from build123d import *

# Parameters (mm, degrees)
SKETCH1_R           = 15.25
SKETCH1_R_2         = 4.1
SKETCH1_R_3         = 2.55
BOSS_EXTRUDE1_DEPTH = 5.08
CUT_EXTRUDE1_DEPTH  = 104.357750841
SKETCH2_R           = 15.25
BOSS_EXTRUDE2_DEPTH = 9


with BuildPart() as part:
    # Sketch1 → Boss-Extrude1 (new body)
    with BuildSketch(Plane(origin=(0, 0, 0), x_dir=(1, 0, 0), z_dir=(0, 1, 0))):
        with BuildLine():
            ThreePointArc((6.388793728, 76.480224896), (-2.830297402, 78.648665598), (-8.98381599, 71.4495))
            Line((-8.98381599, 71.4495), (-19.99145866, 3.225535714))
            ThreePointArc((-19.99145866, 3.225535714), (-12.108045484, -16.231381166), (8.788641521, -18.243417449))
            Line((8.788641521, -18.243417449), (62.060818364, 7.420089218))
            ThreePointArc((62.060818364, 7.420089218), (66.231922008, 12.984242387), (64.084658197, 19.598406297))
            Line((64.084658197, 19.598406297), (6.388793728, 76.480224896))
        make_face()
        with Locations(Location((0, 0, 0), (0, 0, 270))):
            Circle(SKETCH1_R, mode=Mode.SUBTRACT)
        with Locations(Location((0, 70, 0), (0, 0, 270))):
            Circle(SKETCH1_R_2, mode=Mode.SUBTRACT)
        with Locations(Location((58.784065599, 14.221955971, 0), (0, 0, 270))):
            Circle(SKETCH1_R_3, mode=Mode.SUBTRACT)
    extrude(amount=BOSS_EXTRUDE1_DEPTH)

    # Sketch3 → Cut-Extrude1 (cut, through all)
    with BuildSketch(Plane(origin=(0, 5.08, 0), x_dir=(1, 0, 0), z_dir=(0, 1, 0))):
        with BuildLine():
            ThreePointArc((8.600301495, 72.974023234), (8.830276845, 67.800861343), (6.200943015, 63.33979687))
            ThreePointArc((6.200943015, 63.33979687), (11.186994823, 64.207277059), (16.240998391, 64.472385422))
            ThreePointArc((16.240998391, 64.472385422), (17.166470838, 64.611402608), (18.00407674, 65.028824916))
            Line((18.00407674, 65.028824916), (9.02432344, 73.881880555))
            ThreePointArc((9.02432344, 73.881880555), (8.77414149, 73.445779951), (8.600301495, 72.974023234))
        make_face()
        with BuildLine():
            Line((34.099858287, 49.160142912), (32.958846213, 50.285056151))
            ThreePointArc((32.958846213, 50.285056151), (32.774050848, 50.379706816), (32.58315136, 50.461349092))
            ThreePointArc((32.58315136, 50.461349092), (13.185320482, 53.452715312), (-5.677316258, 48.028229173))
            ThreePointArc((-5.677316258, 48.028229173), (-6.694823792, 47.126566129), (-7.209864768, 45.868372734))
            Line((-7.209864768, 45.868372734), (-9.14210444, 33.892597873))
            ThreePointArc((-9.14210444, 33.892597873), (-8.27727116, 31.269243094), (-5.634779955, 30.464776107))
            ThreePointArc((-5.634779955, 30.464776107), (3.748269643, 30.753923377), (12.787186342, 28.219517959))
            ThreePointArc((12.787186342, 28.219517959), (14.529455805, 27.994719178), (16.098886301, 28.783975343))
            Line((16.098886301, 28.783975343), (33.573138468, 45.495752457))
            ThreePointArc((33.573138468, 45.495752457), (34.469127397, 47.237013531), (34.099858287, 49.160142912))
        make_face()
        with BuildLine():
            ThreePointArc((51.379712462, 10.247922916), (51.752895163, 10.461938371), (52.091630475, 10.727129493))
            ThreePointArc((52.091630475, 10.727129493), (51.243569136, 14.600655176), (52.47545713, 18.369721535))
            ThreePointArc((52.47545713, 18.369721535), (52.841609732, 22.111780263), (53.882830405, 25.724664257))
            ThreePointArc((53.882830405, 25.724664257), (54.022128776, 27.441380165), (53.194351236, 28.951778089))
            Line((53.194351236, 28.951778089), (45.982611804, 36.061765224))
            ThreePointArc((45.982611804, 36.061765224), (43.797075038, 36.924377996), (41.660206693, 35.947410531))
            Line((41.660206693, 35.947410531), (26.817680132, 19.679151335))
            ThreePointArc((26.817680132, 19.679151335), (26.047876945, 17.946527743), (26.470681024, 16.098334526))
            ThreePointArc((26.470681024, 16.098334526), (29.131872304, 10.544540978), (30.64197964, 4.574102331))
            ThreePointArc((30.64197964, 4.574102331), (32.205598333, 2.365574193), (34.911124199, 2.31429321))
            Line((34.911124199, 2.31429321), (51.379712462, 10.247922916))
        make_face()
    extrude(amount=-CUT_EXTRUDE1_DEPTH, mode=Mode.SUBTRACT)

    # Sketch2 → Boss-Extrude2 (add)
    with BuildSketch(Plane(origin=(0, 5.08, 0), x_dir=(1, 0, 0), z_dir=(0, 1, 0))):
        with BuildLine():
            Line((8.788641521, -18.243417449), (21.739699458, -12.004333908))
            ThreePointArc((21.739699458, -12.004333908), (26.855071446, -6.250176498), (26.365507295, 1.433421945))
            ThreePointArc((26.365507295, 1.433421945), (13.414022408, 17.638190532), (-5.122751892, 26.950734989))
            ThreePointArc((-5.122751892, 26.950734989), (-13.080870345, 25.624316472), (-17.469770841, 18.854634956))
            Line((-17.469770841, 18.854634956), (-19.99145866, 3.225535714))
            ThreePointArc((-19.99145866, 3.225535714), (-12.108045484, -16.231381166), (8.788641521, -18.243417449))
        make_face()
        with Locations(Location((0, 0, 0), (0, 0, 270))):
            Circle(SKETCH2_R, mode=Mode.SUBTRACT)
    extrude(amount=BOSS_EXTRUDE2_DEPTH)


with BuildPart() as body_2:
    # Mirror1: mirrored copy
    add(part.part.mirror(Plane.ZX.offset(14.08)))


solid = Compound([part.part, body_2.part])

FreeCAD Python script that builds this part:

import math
import FreeCAD as App
import Part
import Sketcher
from FreeCAD import Vector
Q = App.Units.Quantity

doc = App.newDocument("Part")
body = doc.addObject("PartDesign::Body", "Body")

sketch1 = body.newObject("Sketcher::SketchObject", "Sketch")
sketch1.AttachmentSupport = (doc.getObject("XZ_Plane"), [""])
sketch1.MapMode = "FlatFace"
sketch1.addGeometry(Part.ArcOfCircle(Part.Circle(Vector(0, -70, 0), Vector(0, 0, 1), 9.1), math.radians(-170.834561), math.radians(-45.407065)), False)
sketch1.addGeometry(Part.LineSegment(Vector(-8.983816, -71.4495, 0), Vector(-19.991459, -3.225536, 0)), False)
sketch1.addGeometry(Part.ArcOfCircle(Part.Circle(Vector(0, 0, 0), Vector(0, 0, 1), 20.25), math.radians(64.277876), math.radians(189.165439)), False)
sketch1.addGeometry(Part.LineSegment(Vector(8.788642, 18.243417, 0), Vector(62.060818, -7.420089, 0)), False)
sketch1.addGeometry(Part.ArcOfCircle(Part.Circle(Vector(58.784066, -14.221956, 0), Vector(0, 0, 1), 7.55), math.radians(-45.407065), math.radians(64.277876)), False)
sketch1.addGeometry(Part.LineSegment(Vector(64.084658, -19.598406, 0), Vector(6.388794, -76.480225, 0)), False)
sketch1.addGeometry(Part.Circle(Vector(0, 0, 0), Vector(0, 0, 1), 15.25), False)
sketch1.addGeometry(Part.Circle(Vector(58.784066, -14.221956, 0), Vector(0, 0, 1), 2.55), False)
sketch1.addGeometry(Part.Circle(Vector(0, -70, 0), Vector(0, 0, 1), 4.1), False)
sketch1.addConstraint(Sketcher.Constraint("Tangent", 0, 1, 1, 1))
sketch1.addConstraint(Sketcher.Constraint("Tangent", 1, 2, 2, 2))
sketch1.addConstraint(Sketcher.Constraint("Tangent", 2, 1, 3, 1))
sketch1.addConstraint(Sketcher.Constraint("Tangent", 3, 2, 4, 2))
sketch1.addConstraint(Sketcher.Constraint("Tangent", 4, 1, 5, 1))
sketch1.addConstraint(Sketcher.Constraint("Tangent", 5, 2, 0, 2))
sketch1.addConstraint(Sketcher.Constraint("Coincident", 2, 3, -1, 1))
sketch1.addConstraint(Sketcher.Constraint("Coincident", 6, 3, -1, 1))
sketch1.addConstraint(Sketcher.Constraint("Coincident", 7, 3, 4, 3))
sketch1.addConstraint(Sketcher.Constraint("Coincident", 8, 3, 0, 3))
sketch1.addConstraint(Sketcher.Constraint("PointOnObject", 0, 3, -2))
sketch1.addConstraint(Sketcher.Constraint("Diameter", 6, Q("30.5 mm")))
sketch1.addConstraint(Sketcher.Constraint("Diameter", 7, Q("5.1 mm")))
sketch1.addConstraint(Sketcher.Constraint("Diameter", 8, Q("8.2 mm")))
sketch1.addConstraint(Sketcher.Constraint("Radius", 0, Q("9.1 mm")))
sketch1.addConstraint(Sketcher.Constraint("Radius", 2, Q("20.25 mm")))
sketch1.addConstraint(Sketcher.Constraint("Radius", 4, Q("7.55 mm")))
sketch1.addConstraint(Sketcher.Constraint("DistanceY", 0, 3, -1, 1, Q("70 mm")))
sketch1.addConstraint(Sketcher.Constraint("Distance", 5, Q("81.020701 mm")))
sketch1.addConstraint(Sketcher.Constraint("DistanceX", 1, 2, 2, 1, Q("28.7801 mm")))
pad1 = body.newObject("PartDesign::Pad", "Pad")
pad1.Profile = sketch1
pad1.Length = 5.08
pad1.Reversed = True

sketch2 = body.newObject("Sketcher::SketchObject", "Sketch001")
sketch2.AttachmentSupport = (doc.getObject("XZ_Plane"), [""])
sketch2.MapMode = "FlatFace"
sketch2.AttachmentOffset = App.Placement(Vector(0, 0, -5.08), App.Rotation())
sketch2.addGeometry(Part.ArcOfCircle(Part.Circle(Vector(0, -70, 0), Vector(0, 0, 1), 9.1), math.radians(-19.075617), math.radians(47.045112)), False)
sketch2.addGeometry(Part.ArcOfCircle(Part.Circle(Vector(15.923348, -22.220933, 0), Vector(0, 0, 1), 42.252647), math.radians(-103.303059), math.radians(-89.569254)), False)
sketch2.addGeometry(Part.ArcOfCircle(Part.Circle(Vector(16.263552, -67.472301, 0), Vector(0, 0, 1), 3), math.radians(54.537154), math.radians(90.430746)), False)
sketch2.addGeometry(Part.LineSegment(Vector(18.004077, -65.028825, 0), Vector(9.024323, -73.881881, 0)), False)
sketch2.addGeometry(Part.ArcOfCircle(Part.Circle(Vector(11.492283, -72.17625, 0), Vector(0, 0, 1), 3), math.radians(-164.578118), math.radians(-145.351285)), False)
sketch2.addGeometry(Part.LineSegment(Vector(34.099858, -49.160143, 0), Vector(32.958846, -50.285056, 0)), False)
sketch2.addGeometry(Part.ArcOfCircle(Part.Circle(Vector(31.499647, -47.663847, 0), Vector(0, 0, 1), 3), math.radians(-68.828051), math.radians(-60.895781)), False)
sketch2.addGeometry(Part.ArcOfCircle(Part.Circle(Vector(16.084505, -7.863454, 0), Vector(0, 0, 1), 45.681353), math.radians(-118.449437), math.radians(-68.82805)), False)
sketch2.addGeometry(Part.ArcOfCircle(Part.Circle(Vector(-4.248167, -45.390516, 0), Vector(0, 0, 1), 3), math.radians(-170.834561), math.radians(-118.449437)), False)
sketch2.addGeometry(Part.LineSegment(Vector(-7.209865, -45.868373, 0), Vector(-9.142104, -33.892598, 0)), False)
sketch2.addGeometry(Part.ArcOfCircle(Part.Circle(Vector(-6.180407, -33.414741, 0), Vector(0, 0, 1), 3), math.radians(79.520971), math.radians(189.165439)), False)
sketch2.addGeometry(Part.ArcOfCircle(Part.Circle(Vector(0, 0, 0), Vector(0, 0, 1), 30.9815), math.radians(-100.479029), math.radians(-65.623165)), False)
sketch2.addGeometry(Part.ArcOfCircle(Part.Circle(Vector(14.025395, -30.95207, 0), Vector(0, 0, 1), 3), math.radians(46.277696), math.radians(114.376835)), False)
sketch2.addGeometry(Part.LineSegment(Vector(16.098886, -28.783975, 0), Vector(33.573138, -45.495752, 0)), False)
sketch2.addGeometry(Part.ArcOfCircle(Part.Circle(Vector(31.499647, -47.663847, 0), Vector(0, 0, 1), 3), math.radians(-29.918349), math.radians(46.277696)), False)
sketch2.addGeometry(Part.ArcOfCircle(Part.Circle(Vector(50.077691, -12.950651, 0), Vector(0, 0, 1), 3), math.radians(47.831517), math.radians(64.277876)), False)
sketch2.addGeometry(Part.ArcOfCircle(Part.Circle(Vector(58.784066, -14.221956, 0), Vector(0, 0, 1), 7.55), math.radians(152.426189), math.radians(213.324003)), False)
sketch2.addGeometry(Part.ArcOfCircle(Part.Circle(Vector(73.043609, -18.246114, 0), Vector(0, 0, 1), 20.568524), math.radians(-179.655676), math.radians(-158.679043)), False)
sketch2.addGeometry(Part.ArcOfCircle(Part.Circle(Vector(51.088156, -26.81544, 0), Vector(0, 0, 1), 3), math.radians(-45.407065), math.radians(21.320957)), False)
sketch2.addGeometry(Part.LineSegment(Vector(53.194351, -28.951778, 0), Vector(45.982612, -36.061765, 0)), False)
sketch2.addGeometry(Part.ArcOfCircle(Part.Circle(Vector(43.876416, -33.925427, 0), Vector(0, 0, 1), 3), math.radians(-137.623892), math.radians(-45.407065)), False)
sketch2.addGeometry(Part.LineSegment(Vector(41.660207, -35.947411, 0), Vector(26.81768, -19.679151, 0)), False)
sketch2.addGeometry(Part.ArcOfCircle(Part.Circle(Vector(29.03389, -17.657168, 0), Vector(0, 0, 1), 3), math.radians(148.693824), math.radians(222.376108)), False)
sketch2.addGeometry(Part.ArcOfCircle(Part.Circle(Vector(0, 0, 0), Vector(0, 0, 1), 30.9815), math.radians(-31.306176), math.radians(-8.490174)), False)
sketch2.addGeometry(Part.ArcOfCircle(Part.Circle(Vector(33.609103, -5.017022, 0), Vector(0, 0, 1), 3), math.radians(64.277876), math.radians(171.509826)), False)
sketch2.addGeometry(Part.LineSegment(Vector(34.911124, -2.314293, 0), Vector(51.379712, -10.247923, 0)), False)
sketch2.addConstraint(Sketcher.Constraint("Coincident", 0, 2, 1, 1))
sketch2.addConstraint(Sketcher.Constraint("Coincident", 1, 2, 2, 2))
sketch2.addConstraint(Sketcher.Constraint("Coincident", 2, 1, 3, 1))
sketch2.addConstraint(Sketcher.Constraint("Coincident", 3, 2, 4, 2))
sketch2.addConstraint(Sketcher.Constraint("Coincident", 4, 1, 0, 1))
sketch2.addConstraint(Sketcher.Constraint("Coincident", 5, 2, 6, 2))
sketch2.addConstraint(Sketcher.Constraint("Coincident", 6, 1, 7, 2))
sketch2.addConstraint(Sketcher.Constraint("Coincident", 7, 1, 8, 2))
sketch2.addConstraint(Sketcher.Constraint("Coincident", 8, 1, 9, 1))
sketch2.addConstraint(Sketcher.Constraint("Coincident", 9, 2, 10, 2))
sketch2.addConstraint(Sketcher.Constraint("Coincident", 10, 1, 11, 1))
sketch2.addConstraint(Sketcher.Constraint("Coincident", 11, 2, 12, 2))
sketch2.addConstraint(Sketcher.Constraint("Coincident", 12, 1, 13, 1))
sketch2.addConstraint(Sketcher.Constraint("Coincident", 13, 2, 14, 2))
sketch2.addConstraint(Sketcher.Constraint("Coincident", 14, 1, 5, 1))
sketch2.addConstraint(Sketcher.Constraint("Coincident", 15, 1, 16, 1))
sketch2.addConstraint(Sketcher.Constraint("Coincident", 16, 2, 17, 1))
sketch2.addConstraint(Sketcher.Constraint("Coincident", 17, 2, 18, 2))
sketch2.addConstraint(Sketcher.Constraint("Coincident", 18, 1, 19, 1))
sketch2.addConstraint(Sketcher.Constraint("Coincident", 19, 2, 20, 2))
sketch2.addConstraint(Sketcher.Constraint("Coincident", 20, 1, 21, 1))
sketch2.addConstraint(Sketcher.Constraint("Coincident", 21, 2, 22, 2))
sketch2.addConstraint(Sketcher.Constraint("Coincident", 22, 1, 23, 1))
sketch2.addConstraint(Sketcher.Constraint("Coincident", 23, 2, 24, 2))
sketch2.addConstraint(Sketcher.Constraint("Coincident", 24, 1, 25, 1))
sketch2.addConstraint(Sketcher.Constraint("Coincident", 25, 2, 15, 2))
sketch2.addConstraint(Sketcher.Constraint("Coincident", 11, 3, -1, 1))
sketch2.addConstraint(Sketcher.Constraint("Coincident", 23, 3, -1, 1))
sketch2.addConstraint(Sketcher.Constraint("Coincident", 14, 3, 6, 3))
sketch2.addConstraint(Sketcher.Constraint("PointOnObject", 0, 3, -2))
sketch2.addConstraint(Sketcher.Constraint("Radius", 2, Q("3 mm")))
sketch2.addConstraint(Sketcher.Constraint("Radius", 4, Q("3 mm")))
sketch2.addConstraint(Sketcher.Constraint("Radius", 6, Q("3 mm")))
sketch2.addConstraint(Sketcher.Constraint("Radius", 8, Q("3 mm")))
sketch2.addConstraint(Sketcher.Constraint("Radius", 10, Q("3 mm")))
sketch2.addConstraint(Sketcher.Constraint("Radius", 12, Q("3 mm")))
sketch2.addConstraint(Sketcher.Constraint("Radius", 14, Q("3 mm")))
sketch2.addConstraint(Sketcher.Constraint("Radius", 15, Q("3 mm")))
sketch2.addConstraint(Sketcher.Constraint("Radius", 18, Q("3 mm")))
sketch2.addConstraint(Sketcher.Constraint("Radius", 20, Q("3 mm")))
sketch2.addConstraint(Sketcher.Constraint("Radius", 22, Q("3 mm")))
sketch2.addConstraint(Sketcher.Constraint("Radius", 24, Q("3 mm")))
sketch2.addConstraint(Sketcher.Constraint("Radius", 0, Q("9.1 mm")))
sketch2.addConstraint(Sketcher.Constraint("Radius", 16, Q("7.55 mm")))
sketch2.addConstraint(Sketcher.Constraint("DistanceY", 0, 3, -1, 1, Q("70 mm")))
sketch2.addConstraint(Sketcher.Constraint("Radius", 11, Q("30.9815 mm")))
sketch2.addConstraint(Sketcher.Constraint("Radius", 23, Q("30.9815 mm")))
sketch2.addConstraint(Sketcher.Constraint("DistanceX", -1, 1, 1, 2, Q("16.240998 mm")))
sketch2.addConstraint(Sketcher.Constraint("Radius", 1, Q("42.252647 mm")))
sketch2.addConstraint(Sketcher.Constraint("Radius", 7, Q("45.681353 mm")))
sketch2.addConstraint(Sketcher.Constraint("Radius", 17, Q("20.568524 mm")))
sketch2.addConstraint(Sketcher.Constraint("DistanceX", 22, 1, 21, 2, Q("0.346999 mm")))
sketch2.addConstraint(Sketcher.Constraint("DistanceY", 2, 3, -1, 1, Q("67.472301 mm")))
sketch2.addConstraint(Sketcher.Constraint("DistanceX", -1, 1, 4, 1, Q("8.600301 mm")))
sketch2.addConstraint(Sketcher.Constraint("DistanceX", 1, 3, 6, 3, Q("15.576299 mm")))
sketch2.addConstraint(Sketcher.Constraint("DistanceX", 10, 3, 12, 3, Q("20.205802 mm")))
sketch2.addConstraint(Sketcher.Constraint("DistanceY", 16, 3, 7, 3, Q("6.358501 mm")))
sketch2.addConstraint(Sketcher.Constraint("DistanceY", 12, 3, 22, 3, Q("13.294902 mm")))
sketch2.addConstraint(Sketcher.Constraint("DistanceX", 22, 3, 15, 3, Q("21.043802 mm")))
sketch2.addConstraint(Sketcher.Constraint("DistanceX", 7, 3, 24, 3, Q("17.524599 mm")))
sketch2.addConstraint(Sketcher.Constraint("DistanceX", 6, 3, 5, 2, Q("1.459199 mm")))
sketch2.addConstraint(Sketcher.Constraint("DistanceY", 6, 1, 6, 3, Q("2.797502 mm")))
sketch2.addConstraint(Sketcher.Constraint("DistanceX", 9, 2, 12, 3, Q("23.167499 mm")))
sketch2.addConstraint(Sketcher.Constraint("DistanceX", 11, 2, 12, 1, Q("3.3117 mm")))
sketch2.addConstraint(Sketcher.Constraint("DistanceX", 18, 3, 16, 2, Q("1.387302 mm")))
sketch2.addConstraint(Sketcher.Constraint("DistanceY", 19, 2, 17, 2, Q("10.337101 mm")))
sketch2.addConstraint(Sketcher.Constraint("DistanceY", 1, 3, 22, 1, Q("6.122598 mm")))
sketch2.addConstraint(Sketcher.Constraint("DistanceX", 22, 1, 23, 2, Q("4.171299 mm")))
sketch2.addConstraint(Sketcher.Constraint("DistanceY", 16, 2, 25, 2, Q("8.121799 mm")))
sketch2.addConstraint(Sketcher.Constraint("Distance", 3, Q("12.610018 mm")))
sketch2.addConstraint(Sketcher.Constraint("Distance", 5, Q("1.602292 mm")))
sketch2.addConstraint(Sketcher.Constraint("Distance", 25, Q("18.279958 mm")))
sketch2.addConstraint(Sketcher.Constraint("DistanceX", -1, 1, 1, 3, Q("15.923348 mm")))
sketch2.addConstraint(Sketcher.Constraint("DistanceX", -1, 1, 2, 3, Q("16.263552 mm")))
sketch2.addConstraint(Sketcher.Constraint("DistanceY", 4, 3, -1, 1, Q("72.17625 mm")))
sketch2.addConstraint(Sketcher.Constraint("DistanceY", 10, 3, -1, 1, Q("33.414741 mm")))
sketch2.addConstraint(Sketcher.Constraint("DistanceY", 15, 3, -1, 1, Q("12.950651 mm")))
sketch2.addConstraint(Sketcher.Constraint("DistanceX", -1, 1, 17, 3, Q("73.043609 mm")))
sketch2.addConstraint(Sketcher.Constraint("DistanceY", 18, 3, -1, 1, Q("26.81544 mm")))
sketch2.addConstraint(Sketcher.Constraint("DistanceY", 24, 3, -1, 1, Q("5.017022 mm")))
sketch2.addConstraint(Sketcher.Constraint("DistanceY", 3, 2, -1, 1, Q("73.881881 mm")))
sketch2.addConstraint(Sketcher.Constraint("DistanceY", 6, 1, -1, 1, Q("50.461349 mm")))
sketch2.addConstraint(Sketcher.Constraint("DistanceY", 7, 1, -1, 1, Q("48.028229 mm")))
sketch2.addConstraint(Sketcher.Constraint("DistanceX", 10, 1, -1, 1, Q("5.63478 mm")))
sketch2.addConstraint(Sketcher.Constraint("DistanceX", -1, 1, 13, 2, Q("33.573138 mm")))
sketch2.addConstraint(Sketcher.Constraint("DistanceX", -1, 1, 15, 1, Q("52.09163 mm")))
sketch2.addConstraint(Sketcher.Constraint("DistanceX", -1, 1, 17, 2, Q("53.88283 mm")))
sketch2.addConstraint(Sketcher.Constraint("DistanceX", -1, 1, 18, 1, Q("53.194351 mm")))
sketch2.addConstraint(Sketcher.Constraint("DistanceX", -1, 1, 19, 2, Q("45.982612 mm")))
sketch2.addConstraint(Sketcher.Constraint("DistanceY", 20, 1, -1, 1, Q("35.947411 mm")))
sketch2.addConstraint(Sketcher.Constraint("DistanceX", 8, 3, 2, 3, Q("20.511719 mm")))
sketch2.addConstraint(Sketcher.Constraint("DistanceX", 20, 3, 18, 3, Q("7.211739 mm")))
sketch2.addConstraint(Sketcher.Constraint("DistanceX", 8, 1, 7, 1, Q("1.532549 mm")))
sketch2.addConstraint(Sketcher.Constraint("DistanceX", 11, 2, 12, 3, Q("1.238209 mm")))
pocket1 = body.newObject("PartDesign::Pocket", "Pocket")
pocket1.Profile = sketch2
pocket1.Type = "ThroughAll"
pocket1.Reversed = True

sketch3 = body.newObject("Sketcher::SketchObject", "Sketch002")
sketch3.AttachmentSupport = (doc.getObject("XZ_Plane"), [""])
sketch3.MapMode = "FlatFace"
sketch3.AttachmentOffset = App.Placement(Vector(0, 0, -5.08), App.Rotation())
sketch3.addGeometry(Part.LineSegment(Vector(8.788642, 18.243417, 0), Vector(21.739699, 12.004334, 0)), False)
sketch3.addGeometry(Part.ArcOfCircle(Part.Circle(Vector(17.39963, 2.995239, 0), Vector(0, 0, 1), 10), math.radians(-26.286892), math.radians(64.277876)), False)
sketch3.addGeometry(Part.ArcOfCircle(Part.Circle(Vector(-17.12731, 20.049688, 0), Vector(0, 0, 1), 48.509269), math.radians(-75.672187), math.radians(-26.286892)), False)
sketch3.addGeometry(Part.ArcOfCircle(Part.Circle(Vector(-7.597446, -17.261778, 0), Vector(0, 0, 1), 10), math.radians(-170.834561), math.radians(-75.672187)), False)
sketch3.addGeometry(Part.LineSegment(Vector(-17.469771, -18.854635, 0), Vector(-19.991459, -3.225536, 0)), False)
sketch3.addGeometry(Part.ArcOfCircle(Part.Circle(Vector(0, 0, 0), Vector(0, 0, 1), 20.25), math.radians(64.277876), math.radians(189.165439)), False)
sketch3.addGeometry(Part.Circle(Vector(0, 0, 0), Vector(0, 0, 1), 15.25), False)
sketch3.addConstraint(Sketcher.Constraint("Tangent", 0, 2, 1, 2))
sketch3.addConstraint(Sketcher.Constraint("Tangent", 1, 1, 2, 2))
sketch3.addConstraint(Sketcher.Constraint("Tangent", 2, 1, 3, 2))
sketch3.addConstraint(Sketcher.Constraint("Tangent", 3, 1, 4, 1))
sketch3.addConstraint(Sketcher.Constraint("Tangent", 4, 2, 5, 2))
sketch3.addConstraint(Sketcher.Constraint("Tangent", 5, 1, 0, 1))
sketch3.addConstraint(Sketcher.Constraint("Coincident", 5, 3, -1, 1))
sketch3.addConstraint(Sketcher.Constraint("Coincident", 6, 3, -1, 1))
sketch3.addConstraint(Sketcher.Constraint("Equal", 1, 3))
sketch3.addConstraint(Sketcher.Constraint("Radius", 1, Q("10 mm")))
sketch3.addConstraint(Sketcher.Constraint("Diameter", 6, Q("30.5 mm")))
sketch3.addConstraint(Sketcher.Constraint("Radius", 5, Q("20.25 mm")))
sketch3.addConstraint(Sketcher.Constraint("Radius", 2, Q("48.509269 mm")))
sketch3.addConstraint(Sketcher.Constraint("DistanceX", -1, 1, 0, 2, Q("21.739699 mm")))
sketch3.addConstraint(Sketcher.Constraint("DistanceY", 2, 1, 3, 1, Q("8.0961 mm")))
sketch3.addConstraint(Sketcher.Constraint("DistanceY", 3, 1, 4, 2, Q("15.629099 mm")))
sketch3.addConstraint(Sketcher.Constraint("DistanceX", -1, 1, 1, 3, Q("17.39963 mm")))
pad2 = body.newObject("PartDesign::Pad", "Pad001")
pad2.Profile = sketch3
pad2.Length = 9
pad2.Reversed = True
body2 = doc.addObject("PartDesign::Body", "Body001")
doc.recompute()

mirroring = doc.addObject("Part::Mirroring", "Mirroring")
mirroring.Source = body
mirroring.Base = Vector(0, 14.08, 0)
mirroring.Normal = Vector(0, 1, 0)
body2.BaseFeature = mirroring
doc.recompute()
mirroring.Visibility = False

doc.recompute()
